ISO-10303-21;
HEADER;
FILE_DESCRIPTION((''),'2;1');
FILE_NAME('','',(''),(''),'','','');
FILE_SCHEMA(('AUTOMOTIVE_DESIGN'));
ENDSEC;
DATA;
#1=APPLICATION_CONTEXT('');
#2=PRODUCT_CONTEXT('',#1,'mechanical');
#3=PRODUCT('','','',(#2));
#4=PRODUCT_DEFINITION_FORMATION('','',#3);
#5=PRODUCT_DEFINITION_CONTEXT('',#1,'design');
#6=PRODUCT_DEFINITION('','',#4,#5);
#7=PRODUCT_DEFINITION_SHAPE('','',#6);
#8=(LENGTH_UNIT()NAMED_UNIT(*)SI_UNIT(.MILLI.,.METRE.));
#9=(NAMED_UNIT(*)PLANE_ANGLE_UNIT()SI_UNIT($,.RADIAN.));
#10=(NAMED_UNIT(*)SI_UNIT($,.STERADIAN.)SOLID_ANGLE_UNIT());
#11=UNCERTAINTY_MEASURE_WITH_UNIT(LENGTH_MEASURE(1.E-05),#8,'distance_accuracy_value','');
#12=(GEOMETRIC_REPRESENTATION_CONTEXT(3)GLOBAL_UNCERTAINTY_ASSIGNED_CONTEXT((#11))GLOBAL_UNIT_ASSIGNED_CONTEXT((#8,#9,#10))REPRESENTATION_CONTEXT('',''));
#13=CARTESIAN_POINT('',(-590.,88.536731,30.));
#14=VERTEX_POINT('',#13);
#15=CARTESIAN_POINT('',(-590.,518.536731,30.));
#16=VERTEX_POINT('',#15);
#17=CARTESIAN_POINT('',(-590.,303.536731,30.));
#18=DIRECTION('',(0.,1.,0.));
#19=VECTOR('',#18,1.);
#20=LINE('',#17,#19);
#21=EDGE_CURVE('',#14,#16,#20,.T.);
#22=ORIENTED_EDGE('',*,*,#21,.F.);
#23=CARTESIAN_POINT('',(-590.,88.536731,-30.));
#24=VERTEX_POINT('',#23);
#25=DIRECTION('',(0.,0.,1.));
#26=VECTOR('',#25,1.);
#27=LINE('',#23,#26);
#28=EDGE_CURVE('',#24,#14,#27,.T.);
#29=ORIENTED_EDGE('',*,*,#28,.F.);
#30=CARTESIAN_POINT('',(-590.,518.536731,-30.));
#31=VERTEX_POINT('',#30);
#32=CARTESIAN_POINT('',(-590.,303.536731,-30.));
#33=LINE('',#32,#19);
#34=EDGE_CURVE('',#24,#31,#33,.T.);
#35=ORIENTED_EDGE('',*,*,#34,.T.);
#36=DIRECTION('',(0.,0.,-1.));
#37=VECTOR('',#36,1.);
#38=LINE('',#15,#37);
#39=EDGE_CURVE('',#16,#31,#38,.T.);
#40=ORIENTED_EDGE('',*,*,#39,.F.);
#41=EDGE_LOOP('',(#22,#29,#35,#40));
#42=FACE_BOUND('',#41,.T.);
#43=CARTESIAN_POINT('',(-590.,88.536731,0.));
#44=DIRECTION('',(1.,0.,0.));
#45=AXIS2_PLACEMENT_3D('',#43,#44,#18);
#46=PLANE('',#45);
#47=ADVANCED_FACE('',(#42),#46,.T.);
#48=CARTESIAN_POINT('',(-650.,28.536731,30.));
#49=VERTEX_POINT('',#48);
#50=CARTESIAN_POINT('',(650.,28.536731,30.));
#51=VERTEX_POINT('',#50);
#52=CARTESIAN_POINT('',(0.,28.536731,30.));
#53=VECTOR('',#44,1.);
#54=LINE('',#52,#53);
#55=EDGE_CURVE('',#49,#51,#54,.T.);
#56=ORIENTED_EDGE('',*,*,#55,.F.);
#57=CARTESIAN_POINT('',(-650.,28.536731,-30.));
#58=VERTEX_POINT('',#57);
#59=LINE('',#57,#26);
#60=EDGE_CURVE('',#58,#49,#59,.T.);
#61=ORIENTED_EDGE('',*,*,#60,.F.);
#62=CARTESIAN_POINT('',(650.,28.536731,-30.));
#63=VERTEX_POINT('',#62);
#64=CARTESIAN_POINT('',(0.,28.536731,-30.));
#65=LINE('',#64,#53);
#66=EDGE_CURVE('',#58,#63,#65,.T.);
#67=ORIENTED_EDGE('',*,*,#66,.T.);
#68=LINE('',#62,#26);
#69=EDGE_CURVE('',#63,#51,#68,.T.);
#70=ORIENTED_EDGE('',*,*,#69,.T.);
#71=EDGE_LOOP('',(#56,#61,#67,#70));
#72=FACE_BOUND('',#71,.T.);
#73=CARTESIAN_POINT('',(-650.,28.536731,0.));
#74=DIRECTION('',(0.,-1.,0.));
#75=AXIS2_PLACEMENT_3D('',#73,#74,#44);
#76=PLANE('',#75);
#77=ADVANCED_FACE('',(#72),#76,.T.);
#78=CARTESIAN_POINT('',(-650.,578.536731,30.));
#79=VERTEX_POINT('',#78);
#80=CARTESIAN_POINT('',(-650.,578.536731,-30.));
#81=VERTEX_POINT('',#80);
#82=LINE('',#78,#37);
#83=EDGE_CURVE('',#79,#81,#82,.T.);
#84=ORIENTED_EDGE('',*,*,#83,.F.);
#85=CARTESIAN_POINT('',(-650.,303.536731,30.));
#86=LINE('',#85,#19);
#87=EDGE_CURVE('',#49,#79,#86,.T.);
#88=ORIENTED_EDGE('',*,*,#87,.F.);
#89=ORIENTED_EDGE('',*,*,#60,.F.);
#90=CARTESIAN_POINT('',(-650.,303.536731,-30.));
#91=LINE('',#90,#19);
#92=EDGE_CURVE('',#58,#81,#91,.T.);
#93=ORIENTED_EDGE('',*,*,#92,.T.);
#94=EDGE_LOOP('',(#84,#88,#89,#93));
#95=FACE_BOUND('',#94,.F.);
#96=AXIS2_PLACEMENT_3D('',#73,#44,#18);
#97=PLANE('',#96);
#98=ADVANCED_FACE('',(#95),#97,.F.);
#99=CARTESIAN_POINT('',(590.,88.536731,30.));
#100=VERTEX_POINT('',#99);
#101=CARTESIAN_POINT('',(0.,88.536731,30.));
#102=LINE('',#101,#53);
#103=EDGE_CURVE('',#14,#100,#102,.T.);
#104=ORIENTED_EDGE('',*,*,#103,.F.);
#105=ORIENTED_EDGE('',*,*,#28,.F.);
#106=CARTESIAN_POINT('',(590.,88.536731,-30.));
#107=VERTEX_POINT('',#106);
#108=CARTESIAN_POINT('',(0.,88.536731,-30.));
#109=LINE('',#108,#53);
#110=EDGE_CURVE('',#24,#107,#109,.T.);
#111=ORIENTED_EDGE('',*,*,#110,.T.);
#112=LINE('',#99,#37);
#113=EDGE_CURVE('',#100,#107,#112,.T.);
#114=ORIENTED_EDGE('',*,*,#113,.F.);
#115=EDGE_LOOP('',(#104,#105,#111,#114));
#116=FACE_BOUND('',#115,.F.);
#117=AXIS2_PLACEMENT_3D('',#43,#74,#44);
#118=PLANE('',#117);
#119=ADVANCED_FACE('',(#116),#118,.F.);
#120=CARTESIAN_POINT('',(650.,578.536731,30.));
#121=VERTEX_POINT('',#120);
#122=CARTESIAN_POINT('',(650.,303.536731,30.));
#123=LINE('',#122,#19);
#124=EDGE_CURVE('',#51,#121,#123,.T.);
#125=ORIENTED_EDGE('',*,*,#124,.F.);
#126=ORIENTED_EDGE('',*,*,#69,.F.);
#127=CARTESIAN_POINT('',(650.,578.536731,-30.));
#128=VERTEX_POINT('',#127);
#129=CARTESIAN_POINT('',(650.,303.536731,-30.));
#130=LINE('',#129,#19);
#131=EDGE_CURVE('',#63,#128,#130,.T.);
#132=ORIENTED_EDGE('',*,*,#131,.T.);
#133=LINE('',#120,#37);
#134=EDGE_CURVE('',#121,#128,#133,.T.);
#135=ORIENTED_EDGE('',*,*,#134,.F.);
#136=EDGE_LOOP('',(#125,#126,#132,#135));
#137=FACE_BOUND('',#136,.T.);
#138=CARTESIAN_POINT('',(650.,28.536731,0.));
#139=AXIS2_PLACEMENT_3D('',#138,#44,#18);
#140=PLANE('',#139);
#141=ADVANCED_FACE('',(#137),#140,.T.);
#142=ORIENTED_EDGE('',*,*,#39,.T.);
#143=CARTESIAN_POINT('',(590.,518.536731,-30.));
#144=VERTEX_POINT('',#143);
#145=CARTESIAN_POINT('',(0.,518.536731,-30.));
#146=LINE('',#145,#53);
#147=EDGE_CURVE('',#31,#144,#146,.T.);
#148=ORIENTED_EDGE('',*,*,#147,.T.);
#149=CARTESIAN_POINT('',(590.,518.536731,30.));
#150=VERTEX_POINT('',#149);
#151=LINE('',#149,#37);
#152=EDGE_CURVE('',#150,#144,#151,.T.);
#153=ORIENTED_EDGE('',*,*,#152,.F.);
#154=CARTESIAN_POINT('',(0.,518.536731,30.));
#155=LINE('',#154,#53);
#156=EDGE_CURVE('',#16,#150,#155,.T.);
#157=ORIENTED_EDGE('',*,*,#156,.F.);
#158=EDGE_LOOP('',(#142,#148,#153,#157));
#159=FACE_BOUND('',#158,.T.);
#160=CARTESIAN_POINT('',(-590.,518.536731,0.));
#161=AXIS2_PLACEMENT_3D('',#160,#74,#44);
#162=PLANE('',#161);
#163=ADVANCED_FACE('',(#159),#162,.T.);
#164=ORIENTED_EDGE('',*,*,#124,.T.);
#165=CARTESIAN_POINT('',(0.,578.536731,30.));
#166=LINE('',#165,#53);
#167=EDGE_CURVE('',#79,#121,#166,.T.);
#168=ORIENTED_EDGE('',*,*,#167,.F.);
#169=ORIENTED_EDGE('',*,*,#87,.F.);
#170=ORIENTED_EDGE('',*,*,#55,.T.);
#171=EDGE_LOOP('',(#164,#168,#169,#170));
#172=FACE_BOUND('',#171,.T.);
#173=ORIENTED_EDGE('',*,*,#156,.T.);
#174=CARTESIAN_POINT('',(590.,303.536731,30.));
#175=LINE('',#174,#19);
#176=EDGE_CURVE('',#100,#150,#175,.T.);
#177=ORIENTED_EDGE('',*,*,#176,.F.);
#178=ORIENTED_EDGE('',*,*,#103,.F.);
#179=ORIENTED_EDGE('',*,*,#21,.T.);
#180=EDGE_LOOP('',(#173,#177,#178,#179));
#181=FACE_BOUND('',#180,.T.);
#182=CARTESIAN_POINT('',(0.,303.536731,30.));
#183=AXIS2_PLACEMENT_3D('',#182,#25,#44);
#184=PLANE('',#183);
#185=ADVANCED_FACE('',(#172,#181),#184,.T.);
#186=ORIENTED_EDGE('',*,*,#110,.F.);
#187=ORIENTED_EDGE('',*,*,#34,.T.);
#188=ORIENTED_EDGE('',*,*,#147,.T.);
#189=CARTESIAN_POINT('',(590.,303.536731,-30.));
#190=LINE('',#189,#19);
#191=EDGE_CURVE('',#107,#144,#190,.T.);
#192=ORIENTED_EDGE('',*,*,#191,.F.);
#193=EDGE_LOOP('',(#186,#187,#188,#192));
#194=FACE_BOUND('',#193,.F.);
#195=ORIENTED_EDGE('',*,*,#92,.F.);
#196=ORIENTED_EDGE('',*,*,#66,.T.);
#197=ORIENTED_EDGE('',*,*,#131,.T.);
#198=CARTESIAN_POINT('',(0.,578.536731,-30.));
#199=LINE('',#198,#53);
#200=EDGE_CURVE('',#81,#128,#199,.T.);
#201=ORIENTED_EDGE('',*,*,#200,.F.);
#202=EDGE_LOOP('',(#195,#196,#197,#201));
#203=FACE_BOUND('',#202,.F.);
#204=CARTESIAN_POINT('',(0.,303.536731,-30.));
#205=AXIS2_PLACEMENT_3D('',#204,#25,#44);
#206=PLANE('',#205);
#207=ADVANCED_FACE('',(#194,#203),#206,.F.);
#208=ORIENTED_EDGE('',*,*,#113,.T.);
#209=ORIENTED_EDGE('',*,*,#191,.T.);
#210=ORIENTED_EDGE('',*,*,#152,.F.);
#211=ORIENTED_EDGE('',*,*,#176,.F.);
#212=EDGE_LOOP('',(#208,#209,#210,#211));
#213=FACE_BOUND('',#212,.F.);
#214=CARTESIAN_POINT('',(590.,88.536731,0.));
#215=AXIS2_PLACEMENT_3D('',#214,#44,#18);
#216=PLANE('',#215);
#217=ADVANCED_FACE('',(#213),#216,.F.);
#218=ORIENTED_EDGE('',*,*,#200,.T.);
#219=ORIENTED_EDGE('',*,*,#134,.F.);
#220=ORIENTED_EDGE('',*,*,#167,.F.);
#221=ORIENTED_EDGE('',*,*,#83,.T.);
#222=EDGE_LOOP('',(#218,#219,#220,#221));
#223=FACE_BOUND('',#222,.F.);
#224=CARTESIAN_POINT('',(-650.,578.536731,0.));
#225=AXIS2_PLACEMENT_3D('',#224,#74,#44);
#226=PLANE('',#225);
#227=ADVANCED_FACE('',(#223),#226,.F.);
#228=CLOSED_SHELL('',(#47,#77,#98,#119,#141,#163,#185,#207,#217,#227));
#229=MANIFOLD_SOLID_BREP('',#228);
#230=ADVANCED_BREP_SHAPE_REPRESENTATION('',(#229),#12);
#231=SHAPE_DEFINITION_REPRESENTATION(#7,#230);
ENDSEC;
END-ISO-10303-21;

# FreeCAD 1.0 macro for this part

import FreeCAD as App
import Part
import Sketcher

doc = App.newDocument("Part")
params = doc.addObject("Spreadsheet::Sheet", "Params")
for row, (alias, value) in enumerate([
    ("sketch1_width", "1300 mm"),
    ("sketch1_width2", "1180 mm"),
    ("sketch1_height", "550 mm"),
    ("sketch1_height2", "430 mm"),
    ("pad1_length", "60 mm"),
], start=1):
    params.set(f"A{row}", alias)
    params.set(f"B{row}", "=" + value)
    params.setAlias(f"B{row}", alias)

body = doc.addObject("PartDesign::Body", "Body")

# Sketch on XY plane
sketch1 = body.newObject("Sketcher::SketchObject", "Sketch")
sketch1.AttachmentSupport = (doc.getObject("XY_Plane"), [""])
sketch1.MapMode = "FlatFace"
sketch1.addGeometry(Part.LineSegment(App.Vector(-650, 579, 0), App.Vector(-650, 29, 0)), False)
sketch1.addGeometry(Part.LineSegment(App.Vector(-650, 29, 0), App.Vector(650, 29, 0)), False)
sketch1.addGeometry(Part.LineSegment(App.Vector(650, 29, 0), App.Vector(650, 579, 0)), False)
sketch1.addGeometry(Part.LineSegment(App.Vector(650, 579, 0), App.Vector(-650, 579, 0)), False)
sketch1.addGeometry(Part.LineSegment(App.Vector(590, 89, 0), App.Vector(-590, 89, 0)), False)
sketch1.addGeometry(Part.LineSegment(App.Vector(-590, 89, 0), App.Vector(-590, 519, 0)), False)
sketch1.addGeometry(Part.LineSegment(App.Vector(-590, 519, 0), App.Vector(590, 519, 0)), False)
sketch1.addGeometry(Part.LineSegment(App.Vector(590, 519, 0), App.Vector(590, 89, 0)), False)
sketch1.addConstraint(Sketcher.Constraint("Coincident", 0, 2, 1, 1))
sketch1.addConstraint(Sketcher.Constraint("Coincident", 1, 2, 2, 1))
sketch1.addConstraint(Sketcher.Constraint("Coincident", 2, 2, 3, 1))
sketch1.addConstraint(Sketcher.Constraint("Coincident", 3, 2, 0, 1))
sketch1.addConstraint(Sketcher.Constraint("Coincident", 4, 2, 5, 1))
sketch1.addConstraint(Sketcher.Constraint("Coincident", 5, 2, 6, 1))
sketch1.addConstraint(Sketcher.Constraint("Coincident", 6, 2, 7, 1))
sketch1.addConstraint(Sketcher.Constraint("Coincident", 7, 2, 4, 1))
sketch1.addConstraint(Sketcher.Constraint("Vertical", 0))
sketch1.addConstraint(Sketcher.Constraint("Horizontal", 1))
sketch1.addConstraint(Sketcher.Constraint("Vertical", 2))
sketch1.addConstraint(Sketcher.Constraint("Horizontal", 3))
sketch1.addConstraint(Sketcher.Constraint("Horizontal", 4))
sketch1.addConstraint(Sketcher.Constraint("Vertical", 5))
sketch1.addConstraint(Sketcher.Constraint("Horizontal", 6))
sketch1.addConstraint(Sketcher.Constraint("Vertical", 7))
sketch1.addConstraint(Sketcher.Constraint("DistanceX", 1, 1, 1, 2, 1300.0))
sketch1.addConstraint(Sketcher.Constraint("DistanceX", 4, 2, 4, 1, 1180.0))
sketch1.addConstraint(Sketcher.Constraint("DistanceY", 0, 2, 0, 1, 550.0))
sketch1.addConstraint(Sketcher.Constraint("DistanceY", 5, 1, 5, 2, 430.0))
sketch1.addConstraint(Sketcher.Constraint("DistanceX", 0, 2, -1, 1, 650.0))
sketch1.addConstraint(Sketcher.Constraint("DistanceX", 4, 2, -1, 1, 590.0))
sketch1.addConstraint(Sketcher.Constraint("DistanceY", 0, 2, 4, 2, 60.0))
sketch1.addConstraint(Sketcher.Constraint("DistanceY", -1, 1, 0, 2, 28.536731))
sketch1.setExpression("Constraints[16]", "Params.sketch1_width")
sketch1.setExpression("Constraints[17]", "Params.sketch1_width2")
sketch1.setExpression("Constraints[18]", "Params.sketch1_height")
sketch1.setExpression("Constraints[19]", "Params.sketch1_height2")
pad1 = body.newObject("PartDesign::Pad", "Pad")
pad1.Profile = sketch1
pad1.setExpression("Length", "Params.pad1_length")
pad1.Midplane = True

doc.recompute()
